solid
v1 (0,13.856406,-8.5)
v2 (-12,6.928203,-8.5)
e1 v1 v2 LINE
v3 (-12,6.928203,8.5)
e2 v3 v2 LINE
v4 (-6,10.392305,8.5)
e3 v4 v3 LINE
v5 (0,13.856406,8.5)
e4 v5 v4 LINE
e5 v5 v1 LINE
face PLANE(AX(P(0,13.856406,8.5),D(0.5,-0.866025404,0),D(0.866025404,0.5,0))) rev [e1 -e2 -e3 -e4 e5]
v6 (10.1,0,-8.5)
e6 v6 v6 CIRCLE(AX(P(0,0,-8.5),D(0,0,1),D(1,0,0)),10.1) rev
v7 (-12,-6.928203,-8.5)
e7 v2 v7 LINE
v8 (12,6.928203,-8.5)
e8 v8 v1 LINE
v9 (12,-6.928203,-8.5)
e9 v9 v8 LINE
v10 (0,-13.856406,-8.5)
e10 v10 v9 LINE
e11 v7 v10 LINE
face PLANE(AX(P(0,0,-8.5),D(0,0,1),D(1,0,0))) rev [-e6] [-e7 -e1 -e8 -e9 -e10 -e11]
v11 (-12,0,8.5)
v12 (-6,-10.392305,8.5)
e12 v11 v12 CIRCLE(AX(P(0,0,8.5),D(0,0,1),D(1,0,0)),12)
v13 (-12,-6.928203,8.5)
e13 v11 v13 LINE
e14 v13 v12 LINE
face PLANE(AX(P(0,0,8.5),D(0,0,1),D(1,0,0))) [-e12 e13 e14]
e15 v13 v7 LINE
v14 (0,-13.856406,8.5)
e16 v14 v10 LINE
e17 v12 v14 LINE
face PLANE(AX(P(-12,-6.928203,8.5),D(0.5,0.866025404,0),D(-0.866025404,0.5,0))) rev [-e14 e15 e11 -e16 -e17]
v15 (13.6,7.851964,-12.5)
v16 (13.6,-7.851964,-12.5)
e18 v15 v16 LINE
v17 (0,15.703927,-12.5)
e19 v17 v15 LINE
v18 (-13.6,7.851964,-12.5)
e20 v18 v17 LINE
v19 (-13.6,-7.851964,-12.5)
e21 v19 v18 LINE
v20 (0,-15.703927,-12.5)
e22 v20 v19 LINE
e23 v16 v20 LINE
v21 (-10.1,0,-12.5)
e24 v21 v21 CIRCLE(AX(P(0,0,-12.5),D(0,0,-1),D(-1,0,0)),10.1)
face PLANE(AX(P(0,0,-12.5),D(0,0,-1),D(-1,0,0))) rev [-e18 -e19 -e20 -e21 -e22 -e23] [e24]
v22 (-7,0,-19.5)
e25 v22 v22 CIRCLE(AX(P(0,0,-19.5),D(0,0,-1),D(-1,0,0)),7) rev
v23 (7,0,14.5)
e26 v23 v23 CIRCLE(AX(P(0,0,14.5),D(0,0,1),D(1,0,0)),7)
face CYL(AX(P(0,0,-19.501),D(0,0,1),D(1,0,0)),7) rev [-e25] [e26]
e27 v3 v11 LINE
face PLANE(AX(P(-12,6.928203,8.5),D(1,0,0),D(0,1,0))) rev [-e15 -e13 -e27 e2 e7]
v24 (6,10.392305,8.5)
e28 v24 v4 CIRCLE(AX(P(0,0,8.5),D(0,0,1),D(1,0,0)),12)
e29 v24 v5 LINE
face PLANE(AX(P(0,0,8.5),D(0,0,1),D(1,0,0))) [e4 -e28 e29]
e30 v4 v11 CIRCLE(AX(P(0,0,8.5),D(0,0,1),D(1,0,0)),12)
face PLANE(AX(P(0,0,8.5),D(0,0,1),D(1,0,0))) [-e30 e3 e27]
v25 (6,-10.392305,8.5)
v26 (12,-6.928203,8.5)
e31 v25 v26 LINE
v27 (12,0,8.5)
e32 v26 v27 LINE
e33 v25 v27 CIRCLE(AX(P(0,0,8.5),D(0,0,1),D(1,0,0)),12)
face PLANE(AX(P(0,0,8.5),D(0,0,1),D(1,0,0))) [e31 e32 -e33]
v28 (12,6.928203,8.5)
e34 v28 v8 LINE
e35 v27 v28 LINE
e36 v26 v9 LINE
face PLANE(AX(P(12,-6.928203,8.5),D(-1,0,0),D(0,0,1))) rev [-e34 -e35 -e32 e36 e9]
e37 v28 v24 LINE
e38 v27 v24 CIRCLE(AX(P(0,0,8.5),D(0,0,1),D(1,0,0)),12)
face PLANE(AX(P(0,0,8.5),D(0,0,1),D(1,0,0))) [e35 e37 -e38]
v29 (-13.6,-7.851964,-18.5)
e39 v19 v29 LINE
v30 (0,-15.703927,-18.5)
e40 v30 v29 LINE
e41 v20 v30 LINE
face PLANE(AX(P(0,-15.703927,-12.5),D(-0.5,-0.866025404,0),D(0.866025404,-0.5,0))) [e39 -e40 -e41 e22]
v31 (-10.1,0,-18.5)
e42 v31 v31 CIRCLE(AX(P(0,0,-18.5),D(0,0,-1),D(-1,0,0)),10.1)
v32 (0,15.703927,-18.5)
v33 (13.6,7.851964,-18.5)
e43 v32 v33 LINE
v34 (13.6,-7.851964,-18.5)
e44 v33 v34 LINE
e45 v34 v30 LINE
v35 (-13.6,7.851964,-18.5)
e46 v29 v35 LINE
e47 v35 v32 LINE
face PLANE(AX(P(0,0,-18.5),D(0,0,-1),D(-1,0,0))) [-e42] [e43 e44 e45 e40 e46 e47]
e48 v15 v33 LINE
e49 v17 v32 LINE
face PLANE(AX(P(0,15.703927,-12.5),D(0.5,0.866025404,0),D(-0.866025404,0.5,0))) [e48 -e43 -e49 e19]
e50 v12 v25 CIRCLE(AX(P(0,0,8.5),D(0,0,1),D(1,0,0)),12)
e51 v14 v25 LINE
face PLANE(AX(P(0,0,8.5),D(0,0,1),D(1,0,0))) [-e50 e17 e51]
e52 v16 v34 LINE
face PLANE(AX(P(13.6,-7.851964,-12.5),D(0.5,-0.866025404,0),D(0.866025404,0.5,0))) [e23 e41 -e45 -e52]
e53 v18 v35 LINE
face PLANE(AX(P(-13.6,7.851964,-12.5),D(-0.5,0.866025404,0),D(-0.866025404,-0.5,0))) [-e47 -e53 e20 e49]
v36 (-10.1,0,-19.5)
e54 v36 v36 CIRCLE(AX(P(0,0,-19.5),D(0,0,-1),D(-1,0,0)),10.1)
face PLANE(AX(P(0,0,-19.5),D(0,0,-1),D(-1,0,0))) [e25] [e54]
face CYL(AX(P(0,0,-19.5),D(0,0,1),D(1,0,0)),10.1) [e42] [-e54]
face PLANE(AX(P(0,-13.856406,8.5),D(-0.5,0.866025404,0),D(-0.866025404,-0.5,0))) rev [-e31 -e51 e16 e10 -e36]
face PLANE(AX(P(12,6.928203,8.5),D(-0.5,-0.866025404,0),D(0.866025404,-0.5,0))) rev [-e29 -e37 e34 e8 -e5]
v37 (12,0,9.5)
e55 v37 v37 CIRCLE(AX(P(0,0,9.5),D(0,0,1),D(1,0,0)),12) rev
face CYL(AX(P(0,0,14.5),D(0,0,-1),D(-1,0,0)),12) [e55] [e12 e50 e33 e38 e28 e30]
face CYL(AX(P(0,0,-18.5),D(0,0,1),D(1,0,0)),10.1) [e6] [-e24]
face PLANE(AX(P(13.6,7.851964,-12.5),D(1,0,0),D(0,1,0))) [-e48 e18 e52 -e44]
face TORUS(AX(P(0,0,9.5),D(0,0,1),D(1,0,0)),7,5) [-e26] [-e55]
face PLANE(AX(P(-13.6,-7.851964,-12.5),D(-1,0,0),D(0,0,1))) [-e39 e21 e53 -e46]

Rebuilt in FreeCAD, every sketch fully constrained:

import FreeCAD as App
import Part
import Sketcher
from FreeCAD import Vector
Q = App.Units.Quantity


def edges_at(feature, points):
    """Names of the edges that pass closest to the given points."""
    edges = feature.Shape.Edges
    near = lambda p: min(range(len(edges)), key=lambda i: edges[i].distToShape(Part.Vertex(*p))[0])
    return sorted({f"Edge{near(p) + 1}" for p in points})

doc = App.newDocument("Part")
params = doc.addObject("Spreadsheet::Sheet", "Params")
for row, (alias, value) in enumerate([
    ("pad1_length", "17 mm"),
    ("sketch2_diameter", "24 mm"),
    ("pad2_length", "6 mm"),
    ("fillet_radius", "5 mm"),
    ("sketch3_diameter", "20.2 mm"),
    ("pad3_length", "10 mm"),
    ("pad4_length", "6 mm"),
    ("sketch5_diameter", "20.2 mm"),
    ("pad5_length", "1 mm"),
    ("sketch6_diameter", "14 mm"),
], start=1):
    params.set(f"A{row}", alias)
    params.set(f"B{row}", "=" + value)
    params.setAlias(f"B{row}", alias)

body = doc.addObject("PartDesign::Body", "Body")

# Sketch on XY plane
sketch1 = body.newObject("Sketcher::SketchObject", "Sketch")
sketch1.AttachmentSupport = (doc.getObject("XY_Plane"), [""])
sketch1.MapMode = "FlatFace"
sketch1.addGeometry(Part.LineSegment(Vector(0, 13.856406, 0), Vector(-12, 6.928203, 0)), False)
sketch1.addGeometry(Part.LineSegment(Vector(-12, 6.928203, 0), Vector(-12, -6.928203, 0)), False)
sketch1.addGeometry(Part.LineSegment(Vector(-12, -6.928203, 0), Vector(0, -13.856406, 0)), False)
sketch1.addGeometry(Part.LineSegment(Vector(0, -13.856406, 0), Vector(12, -6.928203, 0)), False)
sketch1.addGeometry(Part.LineSegment(Vector(12, -6.928203, 0), Vector(12, 6.928203, 0)), False)
sketch1.addGeometry(Part.LineSegment(Vector(12, 6.928203, 0), Vector(0, 13.856406, 0)), False)
sketch1.addConstraint(Sketcher.Constraint("Coincident", 0, 2, 1, 1))
sketch1.addConstraint(Sketcher.Constraint("Coincident", 1, 2, 2, 1))
sketch1.addConstraint(Sketcher.Constraint("Coincident", 2, 2, 3, 1))
sketch1.addConstraint(Sketcher.Constraint("Coincident", 3, 2, 4, 1))
sketch1.addConstraint(Sketcher.Constraint("Coincident", 4, 2, 5, 1))
sketch1.addConstraint(Sketcher.Constraint("Coincident", 5, 2, 0, 1))
sketch1.addConstraint(Sketcher.Constraint("Vertical", 1))
sketch1.addConstraint(Sketcher.Constraint("Vertical", 4))
sketch1.addConstraint(Sketcher.Constraint("Symmetric", 0, 2, 3, 2, -1, 1))
sketch1.addConstraint(Sketcher.Constraint("Symmetric", 2, 2, 5, 2, -1, 1))
sketch1.addConstraint(Sketcher.Constraint("PointOnObject", 2, 2, -2))
sketch1.addConstraint(Sketcher.Constraint("Parallel", 2, 5))
sketch1.addConstraint(Sketcher.Constraint("Horizontal", 1, 2, 3, 2))
sketch1.addConstraint(Sketcher.Constraint("Angle", 0, Q("-150 deg")))
sketch1.addConstraint(Sketcher.Constraint("DistanceX", 0, 2, -1, 1, 12.0))
sketch1.addConstraint(Sketcher.Constraint("DistanceY", 1, 2, 1, 1, 13.856406))
pad1 = body.newObject("PartDesign::Pad", "Pad")
pad1.Profile = sketch1
pad1.setExpression("Length", "Params.pad1_length")
pad1.Midplane = True

# Sketch on XY plane
sketch2 = body.newObject("Sketcher::SketchObject", "Sketch001")
sketch2.AttachmentSupport = (doc.getObject("XY_Plane"), [""])
sketch2.MapMode = "FlatFace"
sketch2.AttachmentOffset = App.Placement(Vector(0, 0, 8.5), App.Rotation())
sketch2.addGeometry(Part.Circle(Vector(0, 0, 0), Vector(0, 0, 1), 12), False)
sketch2.addConstraint(Sketcher.Constraint("Coincident", 0, 3, -1, 1))
sketch2.addConstraint(Sketcher.Constraint("Diameter", 0, 24.0))
sketch2.setExpression("Constraints[1]", "Params.sketch2_diameter")
pad2 = body.newObject("PartDesign::Pad", "Pad001")
pad2.Profile = sketch2
pad2.setExpression("Length", "Params.pad2_length")
doc.recompute()

fillet = body.newObject("PartDesign::Fillet", "Fillet")
fillet.Base = (pad2, edges_at(pad2, [(-12, 0, 14.5)]))
fillet.setExpression("Radius", "Params.fillet_radius")

# Sketch on XY plane
sketch3 = body.newObject("Sketcher::SketchObject", "Sketch002")
sketch3.AttachmentSupport = (doc.getObject("XY_Plane"), [""])
sketch3.MapMode = "FlatFace"
sketch3.AttachmentOffset = App.Placement(Vector(0, 0, -8.5), App.Rotation())
sketch3.addGeometry(Part.Circle(Vector(0, 0, 0), Vector(0, 0, 1), 10.1), False)
sketch3.addConstraint(Sketcher.Constraint("Coincident", 0, 3, -1, 1))
sketch3.addConstraint(Sketcher.Constraint("Diameter", 0, 20.2))
sketch3.setExpression("Constraints[1]", "Params.sketch3_diameter")
pad3 = body.newObject("PartDesign::Pad", "Pad002")
pad3.Profile = sketch3
pad3.setExpression("Length", "Params.pad3_length")
pad3.Reversed = True

# Sketch on XY plane
sketch4 = body.newObject("Sketcher::SketchObject", "Sketch003")
sketch4.AttachmentSupport = (doc.getObject("XY_Plane"), [""])
sketch4.MapMode = "FlatFace"
sketch4.AttachmentOffset = App.Placement(Vector(0, 0, -18.5), App.Rotation())
sketch4.addGeometry(Part.LineSegment(Vector(0, 15.703927, 0), Vector(13.6, 7.851964, 0)), False)
sketch4.addGeometry(Part.LineSegment(Vector(13.6, 7.851964, 0), Vector(13.6, -7.851964, 0)), False)
sketch4.addGeometry(Part.LineSegment(Vector(13.6, -7.851964, 0), Vector(0, -15.703927, 0)), False)
sketch4.addGeometry(Part.LineSegment(Vector(0, -15.703927, 0), Vector(-13.6, -7.851964, 0)), False)
sketch4.addGeometry(Part.LineSegment(Vector(-13.6, -7.851964, 0), Vector(-13.6, 7.851964, 0)), False)
sketch4.addGeometry(Part.LineSegment(Vector(-13.6, 7.851964, 0), Vector(0, 15.703927, 0)), False)
sketch4.addConstraint(Sketcher.Constraint("Coincident", 0, 2, 1, 1))
sketch4.addConstraint(Sketcher.Constraint("Coincident", 1, 2, 2, 1))
sketch4.addConstraint(Sketcher.Constraint("Coincident", 2, 2, 3, 1))
sketch4.addConstraint(Sketcher.Constraint("Coincident", 3, 2, 4, 1))
sketch4.addConstraint(Sketcher.Constraint("Coincident", 4, 2, 5, 1))
sketch4.addConstraint(Sketcher.Constraint("Coincident", 5, 2, 0, 1))
sketch4.addConstraint(Sketcher.Constraint("Vertical", 1))
sketch4.addConstraint(Sketcher.Constraint("Vertical", 4))
sketch4.addConstraint(Sketcher.Constraint("Symmetric", 0, 2, 3, 2, -1, 1))
sketch4.addConstraint(Sketcher.Constraint("Symmetric", 2, 2, 5, 2, -1, 1))
sketch4.addConstraint(Sketcher.Constraint("PointOnObject", 2, 2, -2))
sketch4.addConstraint(Sketcher.Constraint("Parallel", 2, 5))
sketch4.addConstraint(Sketcher.Constraint("Horizontal", 1, 2, 3, 2))
sketch4.addConstraint(Sketcher.Constraint("Angle", 0, Q("-30 deg")))
sketch4.addConstraint(Sketcher.Constraint("DistanceX", -1, 1, 0, 2, 13.6))
sketch4.addConstraint(Sketcher.Constraint("DistanceY", 1, 2, 1, 1, 15.703927))
pad4 = body.newObject("PartDesign::Pad", "Pad003")
pad4.Profile = sketch4
pad4.setExpression("Length", "Params.pad4_length")

# Sketch on XY plane
sketch5 = body.newObject("Sketcher::SketchObject", "Sketch004")
sketch5.AttachmentSupport = (doc.getObject("XY_Plane"), [""])
sketch5.MapMode = "FlatFace"
sketch5.AttachmentOffset = App.Placement(Vector(0, 0, -18.5), App.Rotation())
sketch5.addGeometry(Part.Circle(Vector(0, 0, 0), Vector(0, 0, 1), 10.1), False)
sketch5.addConstraint(Sketcher.Constraint("Coincident", 0, 3, -1, 1))
sketch5.addConstraint(Sketcher.Constraint("Diameter", 0, 20.2))
sketch5.setExpression("Constraints[1]", "Params.sketch5_diameter")
pad5 = body.newObject("PartDesign::Pad", "Pad004")
pad5.Profile = sketch5
pad5.setExpression("Length", "Params.pad5_length")
pad5.Reversed = True

# Sketch on XY plane
sketch6 = body.newObject("Sketcher::SketchObject", "Sketch005")
sketch6.AttachmentSupport = (doc.getObject("XY_Plane"), [""])
sketch6.MapMode = "FlatFace"
sketch6.AttachmentOffset = App.Placement(Vector(0, 0, 14.5), App.Rotation())
sketch6.addGeometry(Part.Circle(Vector(0, 0, 0), Vector(0, 0, 1), 7), False)
sketch6.addConstraint(Sketcher.Constraint("Coincident", 0, 3, -1, 1))
sketch6.addConstraint(Sketcher.Constraint("Diameter", 0, 14.0))
sketch6.setExpression("Constraints[1]", "Params.sketch6_diameter")
pocket1 = body.newObject("PartDesign::Pocket", "Pocket")
pocket1.Profile = sketch6
pocket1.Type = "UpToFirst"

doc.recompute()
